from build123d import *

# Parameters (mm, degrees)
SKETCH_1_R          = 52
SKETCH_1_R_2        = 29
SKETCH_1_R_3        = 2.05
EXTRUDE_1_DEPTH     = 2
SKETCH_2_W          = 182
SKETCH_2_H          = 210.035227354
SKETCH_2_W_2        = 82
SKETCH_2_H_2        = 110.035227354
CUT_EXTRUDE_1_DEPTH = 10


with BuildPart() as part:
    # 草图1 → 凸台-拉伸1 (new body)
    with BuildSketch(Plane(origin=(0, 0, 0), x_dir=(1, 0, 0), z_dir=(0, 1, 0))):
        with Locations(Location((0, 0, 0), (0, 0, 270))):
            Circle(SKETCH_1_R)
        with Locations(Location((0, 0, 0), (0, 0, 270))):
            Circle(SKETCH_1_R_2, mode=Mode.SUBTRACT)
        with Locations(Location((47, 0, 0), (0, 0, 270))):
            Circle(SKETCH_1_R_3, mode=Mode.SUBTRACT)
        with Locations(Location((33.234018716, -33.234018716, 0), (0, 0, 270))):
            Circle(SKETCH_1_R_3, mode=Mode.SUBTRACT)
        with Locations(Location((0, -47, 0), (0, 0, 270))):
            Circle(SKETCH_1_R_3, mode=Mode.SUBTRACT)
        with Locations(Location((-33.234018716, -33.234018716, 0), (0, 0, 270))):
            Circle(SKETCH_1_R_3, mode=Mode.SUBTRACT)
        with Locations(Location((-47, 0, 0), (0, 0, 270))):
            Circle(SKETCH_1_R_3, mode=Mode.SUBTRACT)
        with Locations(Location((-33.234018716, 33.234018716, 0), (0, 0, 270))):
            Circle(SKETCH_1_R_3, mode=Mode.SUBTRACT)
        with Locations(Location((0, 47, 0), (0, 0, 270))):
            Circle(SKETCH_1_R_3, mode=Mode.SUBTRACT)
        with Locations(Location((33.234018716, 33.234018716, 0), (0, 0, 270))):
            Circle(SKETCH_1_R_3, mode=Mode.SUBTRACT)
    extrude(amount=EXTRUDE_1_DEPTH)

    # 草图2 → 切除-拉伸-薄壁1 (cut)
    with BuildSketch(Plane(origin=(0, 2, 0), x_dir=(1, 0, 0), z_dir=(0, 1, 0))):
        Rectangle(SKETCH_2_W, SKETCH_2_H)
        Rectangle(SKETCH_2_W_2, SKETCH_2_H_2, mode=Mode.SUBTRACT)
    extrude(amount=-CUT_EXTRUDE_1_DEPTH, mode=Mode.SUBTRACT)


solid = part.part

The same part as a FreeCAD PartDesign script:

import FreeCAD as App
import Part
import Sketcher
from FreeCAD import Vector
Q = App.Units.Quantity

doc = App.newDocument("Part")
body = doc.addObject("PartDesign::Body", "Body")

# Sketch on XZ plane
sketch1 = body.newObject("Sketcher::SketchObject", "Sketch")
sketch1.AttachmentSupport = (doc.getObject("XZ_Plane"), [""])
sketch1.MapMode = "FlatFace"
sketch1.addGeometry([
    Part.Circle(Vector(0, 0, 0), Vector(0, 0, 1), 52),  # 0
    Part.Circle(Vector(-33.2, -33.2, 0), Vector(0, 0, 1), 2),  # 1
    Part.Circle(Vector(0, -47, 0), Vector(0, 0, 1), 2),  # 2
    Part.Circle(Vector(-47, 0, 0), Vector(0, 0, 1), 2),  # 3
    Part.Circle(Vector(-33.2, 33.2, 0), Vector(0, 0, 1), 2),  # 4
    Part.Circle(Vector(33.2, -33.2, 0), Vector(0, 0, 1), 2),  # 5
    Part.Circle(Vector(47, 0, 0), Vector(0, 0, 1), 2),  # 6
    Part.Circle(Vector(0, 0, 0), Vector(0, 0, 1), 29),  # 7
    Part.Circle(Vector(0, 47, 0), Vector(0, 0, 1), 2),  # 8
    Part.Circle(Vector(33.2, 33.2, 0), Vector(0, 0, 1), 2),  # 9
], False)
sketch1.addConstraint([
    Sketcher.Constraint("Coincident", 0, 3, -1, 1),
    Sketcher.Constraint("Coincident", 7, 3, -1, 1),
    Sketcher.Constraint("Equal", 1, 2),
    Sketcher.Constraint("Equal", 2, 3),
    Sketcher.Constraint("Equal", 3, 4),
    Sketcher.Constraint("Equal", 4, 5),
    Sketcher.Constraint("Equal", 5, 6),
    Sketcher.Constraint("Equal", 6, 8),
    Sketcher.Constraint("Equal", 8, 9),
    Sketcher.Constraint("Symmetric", 4, 3, 5, 3, -1, 1),
    Sketcher.Constraint("Symmetric", 3, 3, 6, 3, -1, 1),
    Sketcher.Constraint("Symmetric", 2, 3, 8, 3, -1, 1),
    Sketcher.Constraint("Symmetric", 1, 3, 9, 3, -1, 1),
    Sketcher.Constraint("Symmetric", 1, 3, 5, 3, -2),
    Sketcher.Constraint("PointOnObject", 2, 3, -2),
    Sketcher.Constraint("PointOnObject", 3, 3, -1),
    Sketcher.Constraint("Diameter", 0, Q("104 mm")),
    Sketcher.Constraint("Diameter", 7, Q("58 mm")),
    Sketcher.Constraint("Diameter", 1, Q("4.1 mm")),
    Sketcher.Constraint("DistanceY", 2, 3, -1, 1, Q("47 mm")),
    Sketcher.Constraint("DistanceX", 3, 3, -1, 1, Q("47 mm")),
    Sketcher.Constraint("DistanceX", 1, 3, -1, 1, Q("33.234019 mm")),
    Sketcher.Constraint("DistanceY", 1, 3, -1, 1, Q("33.234019 mm")),
])
pad1 = body.newObject("PartDesign::Pad", "Pad")
pad1.Profile = sketch1
pad1.Length = 2
pad1.Reversed = True

# Sketch on XZ plane
sketch2 = body.newObject("Sketcher::SketchObject", "Sketch001")
sketch2.AttachmentSupport = (doc.getObject("XZ_Plane"), [""])
sketch2.MapMode = "FlatFace"
sketch2.AttachmentOffset = App.Placement(Vector(0, 0, -2), App.Rotation())
sketch2.addGeometry([
    Part.LineSegment(Vector(-91, -105, 0), Vector(-91, 105, 0)),  # 0
    Part.LineSegment(Vector(-91, 105, 0), Vector(91, 105, 0)),  # 1
    Part.LineSegment(Vector(91, 105, 0), Vector(91, -105, 0)),  # 2
    Part.LineSegment(Vector(91, -105, 0), Vector(-91, -105, 0)),  # 3
    Part.LineSegment(Vector(41, 55, 0), Vector(-41, 55, 0)),  # 4
    Part.LineSegment(Vector(-41, 55, 0), Vector(-41, -55, 0)),  # 5
    Part.LineSegment(Vector(-41, -55, 0), Vector(41, -55, 0)),  # 6
    Part.LineSegment(Vector(41, -55, 0), Vector(41, 55, 0)),  # 7
], False)
sketch2.addConstraint([
    Sketcher.Constraint("Coincident", 0, 2, 1, 1),
    Sketcher.Constraint("Coincident", 1, 2, 2, 1),
    Sketcher.Constraint("Coincident", 2, 2, 3, 1),
    Sketcher.Constraint("Coincident", 3, 2, 0, 1),
    Sketcher.Constraint("Coincident", 4, 2, 5, 1),
    Sketcher.Constraint("Coincident", 5, 2, 6, 1),
    Sketcher.Constraint("Coincident", 6, 2, 7, 1),
    Sketcher.Constraint("Coincident", 7, 2, 4, 1),
    Sketcher.Constraint("Vertical", 0),
    Sketcher.Constraint("Horizontal", 1),
    Sketcher.Constraint("Vertical", 2),
    Sketcher.Constraint("Horizontal", 3),
    Sketcher.Constraint("Horizontal", 4),
    Sketcher.Constraint("Vertical", 5),
    Sketcher.Constraint("Horizontal", 6),
    Sketcher.Constraint("Vertical", 7),
    Sketcher.Constraint("Symmetric", 0, 2, 2, 2, -1, 1),
    Sketcher.Constraint("Symmetric", 4, 2, 6, 2, -1, 1),
    Sketcher.Constraint("DistanceX", 1, 1, 1, 2, Q("182 mm")),
    Sketcher.Constraint("DistanceX", 4, 2, 4, 1, Q("82 mm")),
    Sketcher.Constraint("DistanceY", 4, 2, 0, 2, Q("50 mm")),
    Sketcher.Constraint("DistanceY", 0, 1, 0, 2, Q("210.035227 mm")),
])
pocket1 = body.newObject("PartDesign::Pocket", "Pocket")
pocket1.Profile = sketch2
pocket1.Length = 10
pocket1.Reversed = True

doc.recompute()
